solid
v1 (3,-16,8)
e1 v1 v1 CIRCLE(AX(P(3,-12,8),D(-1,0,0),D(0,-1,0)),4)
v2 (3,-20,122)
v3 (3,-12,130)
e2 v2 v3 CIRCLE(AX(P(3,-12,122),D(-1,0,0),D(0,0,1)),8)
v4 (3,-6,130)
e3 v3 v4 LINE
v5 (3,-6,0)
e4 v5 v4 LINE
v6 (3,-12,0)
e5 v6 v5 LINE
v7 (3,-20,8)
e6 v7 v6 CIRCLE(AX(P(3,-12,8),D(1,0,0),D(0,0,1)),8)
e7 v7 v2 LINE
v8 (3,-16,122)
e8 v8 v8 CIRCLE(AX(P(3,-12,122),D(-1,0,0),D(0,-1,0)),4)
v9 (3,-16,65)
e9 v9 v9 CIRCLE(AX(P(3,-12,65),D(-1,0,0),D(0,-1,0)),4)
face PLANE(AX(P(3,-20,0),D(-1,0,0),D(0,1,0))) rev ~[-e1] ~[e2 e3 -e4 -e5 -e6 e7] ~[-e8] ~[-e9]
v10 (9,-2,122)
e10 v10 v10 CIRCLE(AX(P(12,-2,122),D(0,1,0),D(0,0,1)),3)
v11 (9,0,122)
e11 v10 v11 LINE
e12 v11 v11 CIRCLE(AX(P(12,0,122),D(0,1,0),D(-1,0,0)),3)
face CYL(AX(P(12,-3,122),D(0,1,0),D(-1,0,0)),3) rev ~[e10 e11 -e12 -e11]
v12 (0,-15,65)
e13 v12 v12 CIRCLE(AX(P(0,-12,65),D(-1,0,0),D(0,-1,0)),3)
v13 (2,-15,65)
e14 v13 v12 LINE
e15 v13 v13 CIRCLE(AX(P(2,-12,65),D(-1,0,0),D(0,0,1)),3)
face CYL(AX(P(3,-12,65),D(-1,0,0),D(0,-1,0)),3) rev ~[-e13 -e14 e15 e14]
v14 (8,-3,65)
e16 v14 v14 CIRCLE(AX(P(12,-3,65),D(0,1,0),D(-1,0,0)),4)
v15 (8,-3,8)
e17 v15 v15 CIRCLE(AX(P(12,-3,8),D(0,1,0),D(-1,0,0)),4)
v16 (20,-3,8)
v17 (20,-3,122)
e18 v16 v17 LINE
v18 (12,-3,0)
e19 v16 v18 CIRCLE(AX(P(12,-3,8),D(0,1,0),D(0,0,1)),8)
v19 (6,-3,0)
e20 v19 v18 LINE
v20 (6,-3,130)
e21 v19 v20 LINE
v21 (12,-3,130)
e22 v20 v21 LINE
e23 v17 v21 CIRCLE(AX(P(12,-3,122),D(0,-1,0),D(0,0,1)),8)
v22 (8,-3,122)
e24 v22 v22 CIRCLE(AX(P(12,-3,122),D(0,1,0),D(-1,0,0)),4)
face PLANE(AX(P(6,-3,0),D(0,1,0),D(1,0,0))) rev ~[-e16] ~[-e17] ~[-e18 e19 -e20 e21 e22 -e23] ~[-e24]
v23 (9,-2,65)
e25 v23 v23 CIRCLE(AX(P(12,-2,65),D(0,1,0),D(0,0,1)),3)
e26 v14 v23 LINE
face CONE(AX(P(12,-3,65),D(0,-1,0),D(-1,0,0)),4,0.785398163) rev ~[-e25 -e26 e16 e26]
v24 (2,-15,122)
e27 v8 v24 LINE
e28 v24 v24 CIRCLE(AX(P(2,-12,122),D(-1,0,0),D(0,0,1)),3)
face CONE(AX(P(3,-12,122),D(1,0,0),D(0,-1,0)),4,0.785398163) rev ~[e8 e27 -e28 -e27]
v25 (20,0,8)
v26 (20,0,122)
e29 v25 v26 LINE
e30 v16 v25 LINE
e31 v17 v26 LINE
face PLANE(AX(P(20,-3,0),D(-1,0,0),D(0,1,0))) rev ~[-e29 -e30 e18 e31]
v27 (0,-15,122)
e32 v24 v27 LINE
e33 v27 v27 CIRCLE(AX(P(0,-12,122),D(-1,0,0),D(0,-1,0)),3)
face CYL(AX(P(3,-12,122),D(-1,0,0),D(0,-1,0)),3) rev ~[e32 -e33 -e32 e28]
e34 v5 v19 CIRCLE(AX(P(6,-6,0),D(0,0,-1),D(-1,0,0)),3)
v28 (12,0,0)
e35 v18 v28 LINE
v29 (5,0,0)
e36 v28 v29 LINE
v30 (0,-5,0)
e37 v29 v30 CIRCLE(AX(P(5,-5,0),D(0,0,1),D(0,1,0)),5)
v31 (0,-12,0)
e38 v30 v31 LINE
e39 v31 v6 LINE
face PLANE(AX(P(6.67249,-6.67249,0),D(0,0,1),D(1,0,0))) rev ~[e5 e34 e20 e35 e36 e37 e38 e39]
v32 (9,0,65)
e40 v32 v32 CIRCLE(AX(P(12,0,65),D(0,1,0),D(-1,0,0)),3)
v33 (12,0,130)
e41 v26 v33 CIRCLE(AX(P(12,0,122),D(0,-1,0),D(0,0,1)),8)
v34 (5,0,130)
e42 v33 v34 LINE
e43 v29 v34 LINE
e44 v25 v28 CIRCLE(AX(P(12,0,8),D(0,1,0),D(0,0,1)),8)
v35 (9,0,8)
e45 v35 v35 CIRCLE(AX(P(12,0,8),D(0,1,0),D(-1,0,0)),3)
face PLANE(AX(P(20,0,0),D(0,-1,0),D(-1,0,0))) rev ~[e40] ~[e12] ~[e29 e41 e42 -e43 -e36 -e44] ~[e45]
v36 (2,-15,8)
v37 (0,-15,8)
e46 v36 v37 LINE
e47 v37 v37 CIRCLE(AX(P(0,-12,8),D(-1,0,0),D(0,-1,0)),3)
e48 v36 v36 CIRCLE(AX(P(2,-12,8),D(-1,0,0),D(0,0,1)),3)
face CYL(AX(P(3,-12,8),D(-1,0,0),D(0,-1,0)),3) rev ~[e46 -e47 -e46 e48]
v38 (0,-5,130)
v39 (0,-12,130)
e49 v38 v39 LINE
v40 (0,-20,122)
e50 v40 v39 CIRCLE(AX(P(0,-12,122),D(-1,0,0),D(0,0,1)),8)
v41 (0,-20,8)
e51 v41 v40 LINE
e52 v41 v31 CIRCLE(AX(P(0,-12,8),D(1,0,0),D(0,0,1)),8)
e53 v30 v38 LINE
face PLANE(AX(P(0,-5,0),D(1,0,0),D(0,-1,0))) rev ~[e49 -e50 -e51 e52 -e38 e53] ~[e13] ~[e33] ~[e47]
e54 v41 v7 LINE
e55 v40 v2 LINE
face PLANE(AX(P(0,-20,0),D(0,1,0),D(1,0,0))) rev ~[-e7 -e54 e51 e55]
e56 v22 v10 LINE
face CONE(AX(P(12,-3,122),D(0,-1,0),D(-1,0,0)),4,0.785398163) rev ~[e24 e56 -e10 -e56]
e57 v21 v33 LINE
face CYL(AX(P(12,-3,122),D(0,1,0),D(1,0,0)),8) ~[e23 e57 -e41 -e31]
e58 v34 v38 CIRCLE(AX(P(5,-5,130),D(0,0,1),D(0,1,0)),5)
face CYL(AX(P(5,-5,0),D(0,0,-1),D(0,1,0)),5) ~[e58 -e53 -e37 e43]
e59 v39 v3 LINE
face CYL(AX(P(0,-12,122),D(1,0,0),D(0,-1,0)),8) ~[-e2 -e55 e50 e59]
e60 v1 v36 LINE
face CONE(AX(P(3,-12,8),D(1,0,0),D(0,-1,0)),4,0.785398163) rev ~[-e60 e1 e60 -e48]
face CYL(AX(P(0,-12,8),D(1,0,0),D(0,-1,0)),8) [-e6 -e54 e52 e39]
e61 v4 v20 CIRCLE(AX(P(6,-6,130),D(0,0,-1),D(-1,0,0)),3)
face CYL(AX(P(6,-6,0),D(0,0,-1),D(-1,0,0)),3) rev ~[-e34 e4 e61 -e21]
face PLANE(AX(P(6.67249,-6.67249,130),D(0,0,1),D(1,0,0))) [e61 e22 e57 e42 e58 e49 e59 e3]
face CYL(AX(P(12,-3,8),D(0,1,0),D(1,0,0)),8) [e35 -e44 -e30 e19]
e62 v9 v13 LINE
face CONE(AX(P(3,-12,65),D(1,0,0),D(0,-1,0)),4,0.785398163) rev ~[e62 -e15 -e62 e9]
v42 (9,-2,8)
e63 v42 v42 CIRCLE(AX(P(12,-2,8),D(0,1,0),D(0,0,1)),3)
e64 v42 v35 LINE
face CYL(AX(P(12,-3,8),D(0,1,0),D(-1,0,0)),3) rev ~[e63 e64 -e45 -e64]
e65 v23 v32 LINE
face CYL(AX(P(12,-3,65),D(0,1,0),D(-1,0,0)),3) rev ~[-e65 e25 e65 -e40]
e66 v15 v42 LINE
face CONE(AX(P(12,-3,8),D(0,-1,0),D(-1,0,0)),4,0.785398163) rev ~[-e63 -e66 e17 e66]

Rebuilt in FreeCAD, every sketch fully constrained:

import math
import FreeCAD as App
import Part
import Sketcher
from FreeCAD import Vector


def edges_at(feature, points):
    """Names of the edges that pass closest to the given points."""
    edges = feature.Shape.Edges
    near = lambda p: min(range(len(edges)), key=lambda i: edges[i].distToShape(Part.Vertex(*p))[0])
    return sorted({f"Edge{near(p) + 1}" for p in points})

doc = App.newDocument("Part")
body = doc.addObject("PartDesign::Body", "Body")

sketch1 = body.newObject("Sketcher::SketchObject", "Sketch")
sketch1.AttachmentSupport = (doc.getObject("XY_Plane"), [""])
sketch1.MapMode = "FlatFace"
sketch1.addGeometry([
    Part.LineSegment(Vector(20, -3, 0), Vector(20, 0, 0)),
    Part.LineSegment(Vector(20, 0, 0), Vector(5, 0, 0)),
    Part.ArcOfCircle(Part.Circle(Vector(5, -5, 0), Vector(0, 0, 1), 5), math.radians(90), math.radians(180)),
    Part.LineSegment(Vector(0, -5, 0), Vector(0, -20, 0)),
    Part.LineSegment(Vector(0, -20, 0), Vector(3, -20, 0)),
    Part.LineSegment(Vector(3, -20, 0), Vector(3, -6, 0)),
    Part.ArcOfCircle(Part.Circle(Vector(6, -6, 0), Vector(0, 0, 1), 3), math.radians(90), math.radians(180)),
    Part.LineSegment(Vector(6, -3, 0), Vector(20, -3, 0)),
], False)
sketch1.addConstraint([
    Sketcher.Constraint("Coincident", 0, 2, 1, 1),
    Sketcher.Constraint("Tangent", 1, 2, 2, 1),
    Sketcher.Constraint("Tangent", 2, 2, 3, 1),
    Sketcher.Constraint("Coincident", 3, 2, 4, 1),
    Sketcher.Constraint("Coincident", 4, 2, 5, 1),
    Sketcher.Constraint("Tangent", 5, 2, 6, 2),
    Sketcher.Constraint("Tangent", 6, 1, 7, 1),
    Sketcher.Constraint("Coincident", 7, 2, 0, 1),
    Sketcher.Constraint("Vertical", 0),
    Sketcher.Constraint("Horizontal", 1),
    Sketcher.Constraint("Vertical", 3),
    Sketcher.Constraint("Horizontal", 4),
    Sketcher.Constraint("Vertical", 5),
    Sketcher.Constraint("Horizontal", 7),
    Sketcher.Constraint("PointOnObject", 0, 2, -1),
    Sketcher.Constraint("PointOnObject", 2, 2, -2),
    Sketcher.Constraint("Equal", 4, 0),
    Sketcher.Constraint("Equal", 1, 3),
    Sketcher.Constraint("Radius", 2, 5.0),
    Sketcher.Constraint("Radius", 6, 3.0),
    Sketcher.Constraint("DistanceX", 1, 2, 1, 1, 15.0),
    Sketcher.Constraint("DistanceX", 4, 1, 4, 2, 3.0),
])
pad1 = body.newObject("PartDesign::Pad", "Pad")
pad1.Profile = sketch1
pad1.Length = 130
doc.recompute()

fillet = body.newObject("PartDesign::Fillet", "Fillet")
fillet.Base = (pad1, edges_at(pad1, [
    (20, -1.5, 130),
    (20, -1.5, 0),
    (1.5, -20, 0),
    (1.5, -20, 130),
]))
fillet.Radius = 8

sketch2 = body.newObject("Sketcher::SketchObject", "Sketch001")
sketch2.AttachmentSupport = (doc.getObject("XZ_Plane"), [""])
sketch2.MapMode = "FlatFace"
sketch2.AttachmentOffset = App.Placement(Vector(0, 0, 3), App.Rotation())
sketch2.addGeometry([
    Part.Circle(Vector(12, 122, 0), Vector(0, 0, 1), 3),
    Part.Circle(Vector(12, 65, 0), Vector(0, 0, 1), 3),
    Part.Circle(Vector(12, 8, 0), Vector(0, 0, 1), 3),
], False)
sketch2.addConstraint([
    Sketcher.Constraint("Equal", 0, 1),
    Sketcher.Constraint("Equal", 1, 2),
    Sketcher.Constraint("Vertical", 0, 3, 1, 3),
    Sketcher.Constraint("Vertical", 1, 3, 2, 3),
    Sketcher.Constraint("Diameter", 0, 6.0),
    Sketcher.Constraint("DistanceX", -1, 1, 0, 3, 12.0),
    Sketcher.Constraint("DistanceY", -1, 1, 0, 3, 122.0),
    Sketcher.Constraint("DistanceY", -1, 1, 1, 3, 65.0),
    Sketcher.Constraint("DistanceY", -1, 1, 2, 3, 8.0),
])
doc.recompute()
hole = body.newObject("PartDesign::Hole", "Hole")
hole.Profile = sketch2
hole.ThreadType = "None"
hole.Diameter = 6
hole.DepthType = "ThroughAll"
hole.HoleCutType = "Countersink"
hole.HoleCutDiameter = 8
hole.HoleCutCountersinkAngle = 90

sketch3 = body.newObject("Sketcher::SketchObject", "Sketch002")
sketch3.AttachmentSupport = (doc.getObject("YZ_Plane"), [""])
sketch3.MapMode = "FlatFace"
sketch3.AttachmentOffset = App.Placement(Vector(0, 0, 3), App.Rotation())
sketch3.addGeometry([
    Part.Circle(Vector(-12, 122, 0), Vector(0, 0, 1), 3),
    Part.Circle(Vector(-12, 65, 0), Vector(0, 0, 1), 3),
    Part.Circle(Vector(-12, 8, 0), Vector(0, 0, 1), 3),
], False)
sketch3.addConstraint([
    Sketcher.Constraint("Equal", 0, 1),
    Sketcher.Constraint("Equal", 1, 2),
    Sketcher.Constraint("Vertical", 0, 3, 1, 3),
    Sketcher.Constraint("Vertical", 1, 3, 2, 3),
    Sketcher.Constraint("Diameter", 0, 6.0),
    Sketcher.Constraint("DistanceX", 0, 3, -1, 1, 12.0),
    Sketcher.Constraint("DistanceY", -1, 1, 0, 3, 122.0),
    Sketcher.Constraint("DistanceY", -1, 1, 1, 3, 65.0),
    Sketcher.Constraint("DistanceY", -1, 1, 2, 3, 8.0),
])
doc.recompute()
hole2 = body.newObject("PartDesign::Hole", "Hole001")
hole2.Profile = sketch3
hole2.ThreadType = "None"
hole2.Diameter = 6
hole2.DepthType = "ThroughAll"
hole2.HoleCutType = "Countersink"
hole2.HoleCutDiameter = 8
hole2.HoleCutCountersinkAngle = 90

doc.recompute()
